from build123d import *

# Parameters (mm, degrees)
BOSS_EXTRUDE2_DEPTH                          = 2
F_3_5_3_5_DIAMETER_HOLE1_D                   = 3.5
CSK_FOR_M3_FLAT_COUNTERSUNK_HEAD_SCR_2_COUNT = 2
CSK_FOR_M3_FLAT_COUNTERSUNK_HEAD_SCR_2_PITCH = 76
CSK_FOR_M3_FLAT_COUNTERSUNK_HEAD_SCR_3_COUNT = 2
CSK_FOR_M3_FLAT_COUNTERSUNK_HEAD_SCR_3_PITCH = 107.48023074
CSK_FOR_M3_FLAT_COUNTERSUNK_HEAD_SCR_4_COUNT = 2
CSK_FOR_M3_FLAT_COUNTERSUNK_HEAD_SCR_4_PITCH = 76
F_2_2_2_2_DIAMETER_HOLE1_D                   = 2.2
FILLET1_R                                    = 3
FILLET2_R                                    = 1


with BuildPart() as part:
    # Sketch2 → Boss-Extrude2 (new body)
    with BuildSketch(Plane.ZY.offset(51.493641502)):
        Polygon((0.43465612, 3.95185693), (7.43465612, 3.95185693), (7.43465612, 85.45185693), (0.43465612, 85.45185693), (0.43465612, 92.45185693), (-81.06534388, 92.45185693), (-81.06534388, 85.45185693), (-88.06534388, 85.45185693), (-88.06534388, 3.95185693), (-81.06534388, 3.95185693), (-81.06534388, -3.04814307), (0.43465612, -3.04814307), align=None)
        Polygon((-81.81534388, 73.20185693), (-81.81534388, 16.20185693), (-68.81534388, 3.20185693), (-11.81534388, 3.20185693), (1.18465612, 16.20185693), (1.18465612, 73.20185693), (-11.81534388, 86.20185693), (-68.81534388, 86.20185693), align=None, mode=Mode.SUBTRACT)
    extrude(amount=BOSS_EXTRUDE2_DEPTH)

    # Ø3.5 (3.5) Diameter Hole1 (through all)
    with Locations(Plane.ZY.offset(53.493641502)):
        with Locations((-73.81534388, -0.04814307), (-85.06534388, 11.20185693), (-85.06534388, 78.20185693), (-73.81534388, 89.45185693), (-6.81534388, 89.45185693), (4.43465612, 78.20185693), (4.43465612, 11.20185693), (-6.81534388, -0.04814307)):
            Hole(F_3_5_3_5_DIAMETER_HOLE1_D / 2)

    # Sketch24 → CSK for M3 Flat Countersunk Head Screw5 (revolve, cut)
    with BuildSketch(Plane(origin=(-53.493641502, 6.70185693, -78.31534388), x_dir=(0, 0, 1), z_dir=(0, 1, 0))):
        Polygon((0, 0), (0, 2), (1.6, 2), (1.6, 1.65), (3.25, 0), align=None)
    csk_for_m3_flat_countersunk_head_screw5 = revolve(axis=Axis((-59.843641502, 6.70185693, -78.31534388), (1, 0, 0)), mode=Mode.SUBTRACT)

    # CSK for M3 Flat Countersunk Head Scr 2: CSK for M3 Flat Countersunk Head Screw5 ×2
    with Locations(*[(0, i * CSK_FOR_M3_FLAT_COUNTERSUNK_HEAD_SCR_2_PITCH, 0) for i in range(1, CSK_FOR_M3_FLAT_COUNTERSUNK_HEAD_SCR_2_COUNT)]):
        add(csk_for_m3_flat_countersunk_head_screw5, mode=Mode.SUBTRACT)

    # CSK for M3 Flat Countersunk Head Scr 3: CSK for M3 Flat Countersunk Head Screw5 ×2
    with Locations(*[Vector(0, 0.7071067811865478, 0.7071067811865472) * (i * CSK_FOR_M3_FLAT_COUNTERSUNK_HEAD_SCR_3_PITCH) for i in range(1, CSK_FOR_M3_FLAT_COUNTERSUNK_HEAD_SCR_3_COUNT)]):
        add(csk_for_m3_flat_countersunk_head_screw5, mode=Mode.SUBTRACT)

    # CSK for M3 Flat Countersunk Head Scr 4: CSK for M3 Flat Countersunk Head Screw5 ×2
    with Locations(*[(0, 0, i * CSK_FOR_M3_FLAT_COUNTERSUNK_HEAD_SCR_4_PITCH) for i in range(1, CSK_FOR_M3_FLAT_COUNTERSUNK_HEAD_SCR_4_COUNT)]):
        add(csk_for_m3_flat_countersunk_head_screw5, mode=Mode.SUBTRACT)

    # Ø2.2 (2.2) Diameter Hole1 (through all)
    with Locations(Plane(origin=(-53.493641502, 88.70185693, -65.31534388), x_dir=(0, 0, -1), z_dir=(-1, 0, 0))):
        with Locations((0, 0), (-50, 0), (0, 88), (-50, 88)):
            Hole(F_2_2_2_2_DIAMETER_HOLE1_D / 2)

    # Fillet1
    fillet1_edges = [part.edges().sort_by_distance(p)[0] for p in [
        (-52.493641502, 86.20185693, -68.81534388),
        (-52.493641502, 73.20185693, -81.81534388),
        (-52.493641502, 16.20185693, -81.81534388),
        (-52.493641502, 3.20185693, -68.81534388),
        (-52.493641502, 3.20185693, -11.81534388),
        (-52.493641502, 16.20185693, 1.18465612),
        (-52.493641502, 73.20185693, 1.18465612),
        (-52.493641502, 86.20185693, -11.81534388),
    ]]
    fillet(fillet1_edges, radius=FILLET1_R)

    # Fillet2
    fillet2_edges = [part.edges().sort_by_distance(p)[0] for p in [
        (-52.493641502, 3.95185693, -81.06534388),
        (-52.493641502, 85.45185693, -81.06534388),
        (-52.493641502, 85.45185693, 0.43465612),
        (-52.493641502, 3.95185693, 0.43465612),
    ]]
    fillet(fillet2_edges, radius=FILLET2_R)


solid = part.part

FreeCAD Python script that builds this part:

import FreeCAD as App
import Part
import Sketcher
Q = App.Units.Quantity


def edges_at(feature, points):
    """Names of the edges that pass closest to the given points."""
    edges = feature.Shape.Edges
    near = lambda p: min(range(len(edges)), key=lambda i: edges[i].distToShape(Part.Vertex(*p))[0])
    return sorted({f"Edge{near(p) + 1}" for p in points})


def add_polygon(sketch, points):
    """Adds a closed chain of lines whose ends are joined by coincident constraints."""
    first, n = sketch.GeometryCount, len(points)
    for a, b in zip(points, points[1:] + points[:1]):
        sketch.addGeometry(Part.LineSegment(App.Vector(*a, 0), App.Vector(*b, 0)), False)
    for i in range(n):
        sketch.addConstraint(Sketcher.Constraint("Coincident", first + i, 2, first + (i + 1) % n, 1))

doc = App.newDocument("Part")
body = doc.addObject("PartDesign::Body", "Body")

# Sketch on YZ plane
sketch1 = body.newObject("Sketcher::SketchObject", "Sketch")
sketch1.AttachmentSupport = (doc.getObject("YZ_Plane"), [""])
sketch1.MapMode = "FlatFace"
sketch1.AttachmentOffset = App.Placement(App.Vector(0, 0, -51.493642), App.Rotation())
add_polygon(sketch1, [(4, 0), (4, 7), (85, 7), (85, 0), (92, 0), (92, -81), (85, -81), (85, -88), (4, -88), (4, -81), (-3, -81), (-3, 0)])  # lines 0-11
add_polygon(sketch1, [(16, -82), (73, -82), (86, -69), (86, -12), (73, 1), (16, 1), (3, -12), (3, -69)])  # lines 12-19
sketch1.addConstraint([
    Sketcher.Constraint("Vertical", 0),
    Sketcher.Constraint("Horizontal", 1),
    Sketcher.Constraint("Vertical", 2),
    Sketcher.Constraint("Horizontal", 3),
    Sketcher.Constraint("Vertical", 4),
    Sketcher.Constraint("Horizontal", 5),
    Sketcher.Constraint("Vertical", 6),
    Sketcher.Constraint("Horizontal", 7),
    Sketcher.Constraint("Vertical", 8),
    Sketcher.Constraint("Horizontal", 9),
    Sketcher.Constraint("Vertical", 10),
    Sketcher.Constraint("Horizontal", 11),
    Sketcher.Constraint("Horizontal", 12),
    Sketcher.Constraint("Vertical", 14),
    Sketcher.Constraint("Horizontal", 16),
    Sketcher.Constraint("Vertical", 18),
    Sketcher.Constraint("Perpendicular", 13, 15),
    Sketcher.Constraint("Perpendicular", 15, 17),
    Sketcher.Constraint("Perpendicular", 17, 19),
    Sketcher.Constraint("Horizontal", 5, 2, 8, 2),
    Sketcher.Constraint("Horizontal", 3, 2, 10, 2),
    Sketcher.Constraint("Horizontal", 14, 2, 17, 2),
    Sketcher.Constraint("Horizontal", 13, 2, 18, 2),
    Sketcher.Constraint("Vertical", 2, 2, 5, 2),
    Sketcher.Constraint("Vertical", 0, 2, 7, 2),
    Sketcher.Constraint("Vertical", 12, 2, 15, 2),
    Sketcher.Constraint("Vertical", 16, 2, 19, 2),
    Sketcher.Constraint("Equal", 5, 9),
    Sketcher.Constraint("Equal", 11, 0),
    Sketcher.Constraint("Equal", 7, 4),
    Sketcher.Constraint("Equal", 2, 6),
    Sketcher.Constraint("Equal", 16, 14),
    Sketcher.Constraint("DistanceX", 3, 1, 3, 2, 7.0),
    Sketcher.Constraint("DistanceX", 12, 1, 12, 2, 57.0),
    Sketcher.Constraint("DistanceX", 1, 1, 1, 2, 81.5),
    Sketcher.Constraint("DistanceX", 12, 2, 13, 2, 13.0),
    Sketcher.Constraint("DistanceX", 12, 2, 5, 2, 12.25),
    Sketcher.Constraint("DistanceY", 12, 2, 5, 2, 0.75),
    Sketcher.Constraint("DistanceX", -1, 1, 0, 2, 3.951857),
    Sketcher.Constraint("DistanceY", -1, 1, 0, 2, 7.434656),
])
pad1 = body.newObject("PartDesign::Pad", "Pad")
pad1.Profile = sketch1
pad1.Length = 2
pad1.Reversed = True

# Sketch on YZ plane
sketch2 = body.newObject("Sketcher::SketchObject", "Sketch001")
sketch2.AttachmentSupport = (doc.getObject("YZ_Plane"), [""])
sketch2.MapMode = "FlatFace"
sketch2.AttachmentOffset = App.Placement(App.Vector(0, 0, -53.493642), App.Rotation())
sketch2.addGeometry([
    Part.Circle(App.Vector(0, -73.8, 0), App.Vector(0, 0, 1), 1.8),  # 0
    Part.Circle(App.Vector(11.2, -85.1, 0), App.Vector(0, 0, 1), 1.8),  # 1
    Part.Circle(App.Vector(78.2, -85.1, 0), App.Vector(0, 0, 1), 1.8),  # 2
    Part.Circle(App.Vector(89.5, -73.8, 0), App.Vector(0, 0, 1), 1.8),  # 3
    Part.Circle(App.Vector(89.5, -6.8, 0), App.Vector(0, 0, 1), 1.8),  # 4
    Part.Circle(App.Vector(78.2, 4.4, 0), App.Vector(0, 0, 1), 1.8),  # 5
    Part.Circle(App.Vector(11.2, 4.4, 0), App.Vector(0, 0, 1), 1.8),  # 6
    Part.Circle(App.Vector(0, -6.8, 0), App.Vector(0, 0, 1), 1.8),  # 7
], False)
sketch2.addConstraint([
    Sketcher.Constraint("Equal", 0, 1),
    Sketcher.Constraint("Equal", 1, 2),
    Sketcher.Constraint("Equal", 2, 3),
    Sketcher.Constraint("Equal", 3, 4),
    Sketcher.Constraint("Equal", 4, 5),
    Sketcher.Constraint("Equal", 5, 6),
    Sketcher.Constraint("Equal", 6, 7),
    Sketcher.Constraint("Horizontal", 1, 3, 2, 3),
    Sketcher.Constraint("Horizontal", 0, 3, 3, 3),
    Sketcher.Constraint("Horizontal", 5, 3, 6, 3),
    Sketcher.Constraint("Horizontal", 4, 3, 7, 3),
    Sketcher.Constraint("Vertical", 3, 3, 4, 3),
    Sketcher.Constraint("Vertical", 2, 3, 5, 3),
    Sketcher.Constraint("Vertical", 1, 3, 6, 3),
    Sketcher.Constraint("Vertical", 0, 3, 7, 3),
    Sketcher.Constraint("Diameter", 0, 3.5),
    Sketcher.Constraint("DistanceX", 1, 3, 2, 3, 67.0),
    Sketcher.Constraint("DistanceY", 3, 3, 4, 3, 67.0),
    Sketcher.Constraint("DistanceX", 0, 3, 3, 3, 89.5),
    Sketcher.Constraint("DistanceY", 2, 3, 5, 3, 89.5),
    Sketcher.Constraint("DistanceX", 0, 3, 1, 3, 11.25),
    Sketcher.Constraint("DistanceY", 1, 3, 0, 3, 11.25),
    Sketcher.Constraint("DistanceX", 0, 3, -1, 1, 0.048143),
    Sketcher.Constraint("DistanceY", 0, 3, -1, 1, 73.815344),
])
doc.recompute()
hole = body.newObject("PartDesign::Hole", "Hole")
hole.Profile = sketch2
hole.ThreadType = "None"
hole.Diameter = 3.5
hole.DepthType = "ThroughAll"
hole.Reversed = True

# Sketch on XZ plane
sketch3 = body.newObject("Sketcher::SketchObject", "Sketch002")
sketch3.AttachmentSupport = (doc.getObject("XZ_Plane"), [""])
sketch3.MapMode = "FlatFace"
sketch3.AttachmentOffset = App.Placement(App.Vector(0, 0, -6.701857), App.Rotation())
add_polygon(sketch3, [(-51.49, -78.32), (-53.49, -78.32), (-53.49, -75.07), (-51.84, -76.72), (-51.49, -76.72)])  # lines 0-4
sketch3.addGeometry(Part.LineSegment(App.Vector(-53.49, -78.32, 0), App.Vector(-51.49, -78.32, 0)), True)  # axis
sketch3.addConstraint([
    Sketcher.Constraint("Horizontal", 0),
    Sketcher.Constraint("Vertical", 1),
    Sketcher.Constraint("Horizontal", 3),
    Sketcher.Constraint("Vertical", 4),
    Sketcher.Constraint("Horizontal", 5),
    Sketcher.Constraint("Coincident", 5, 1, 0, 2),
    Sketcher.Constraint("Vertical", 3, 2, 5, 2),
    Sketcher.Constraint("DistanceX", 0, 2, 0, 1, 2.0),
    Sketcher.Constraint("Angle", 2, Q("-45 deg")),
    Sketcher.Constraint("DistanceY", 4, 2, 4, 1, 1.6),
    Sketcher.Constraint("DistanceX", 3, 1, 3, 2, 0.35),
    Sketcher.Constraint("DistanceX", 0, 2, -1, 1, 53.493642),
    Sketcher.Constraint("DistanceY", 0, 2, -1, 1, 78.315344),
])
groove = body.newObject("PartDesign::Groove", "Groove")
groove.Profile = sketch3
groove.ReferenceAxis = (sketch3, ["Axis0"])
groove.Angle = 360
doc.recompute()

linearpattern = body.newObject("PartDesign::LinearPattern", "LinearPattern")
linearpattern.Originals = [groove]
linearpattern.Direction = (doc.getObject("Y_Axis"), [""])
linearpattern.Mode = "offset"
linearpattern.Offset = 76
linearpattern.Occurrences = 2
body.Tip = linearpattern
doc.recompute()

datumline = body.newObject("PartDesign::Line", "DatumLine")
datumline.Placement = App.Placement(App.Vector(0, 0, 0), App.Rotation(App.Vector(0, 0, 1), App.Vector(0, 0.707106781, 0.707106781)))
linearpattern2 = body.newObject("PartDesign::LinearPattern", "LinearPattern001")
linearpattern2.Originals = [groove]
linearpattern2.Direction = (datumline, [""])
linearpattern2.Mode = "offset"
linearpattern2.Offset = 107.480231
linearpattern2.Occurrences = 2
body.Tip = linearpattern2
doc.recompute()

linearpattern3 = body.newObject("PartDesign::LinearPattern", "LinearPattern002")
linearpattern3.Originals = [groove]
linearpattern3.Direction = (doc.getObject("Z_Axis"), [""])
linearpattern3.Mode = "offset"
linearpattern3.Offset = 76
linearpattern3.Occurrences = 2
body.Tip = linearpattern3

# Sketch on YZ plane
sketch4 = body.newObject("Sketcher::SketchObject", "Sketch003")
sketch4.AttachmentSupport = (doc.getObject("YZ_Plane"), [""])
sketch4.MapMode = "FlatFace"
sketch4.AttachmentOffset = App.Placement(App.Vector(0, 0, -53.493642), App.Rotation())
sketch4.addGeometry([
    Part.Circle(App.Vector(88.7, -65.3, 0), App.Vector(0, 0, 1), 1.1),
    Part.Circle(App.Vector(88.7, -15.3, 0), App.Vector(0, 0, 1), 1.1),
    Part.Circle(App.Vector(0.7, -65.3, 0), App.Vector(0, 0, 1), 1.1),
    Part.Circle(App.Vector(0.7, -15.3, 0), App.Vector(0, 0, 1), 1.1),
], False)
sketch4.addConstraint([
    Sketcher.Constraint("Equal", 0, 1),
    Sketcher.Constraint("Equal", 1, 2),
    Sketcher.Constraint("Equal", 2, 3),
    Sketcher.Constraint("Horizontal", 0, 3, 2, 3),
    Sketcher.Constraint("Horizontal", 1, 3, 3, 3),
    Sketcher.Constraint("Vertical", 0, 3, 1, 3),
    Sketcher.Constraint("Vertical", 2, 3, 3, 3),
    Sketcher.Constraint("Diameter", 0, 2.2),
    Sketcher.Constraint("DistanceY", 0, 3, 1, 3, 50.0),
    Sketcher.Constraint("DistanceX", 2, 3, 0, 3, 88.0),
    Sketcher.Constraint("DistanceX", -1, 1, 0, 3, 88.701857),
    Sketcher.Constraint("DistanceY", 0, 3, -1, 1, 65.315344),
])
doc.recompute()
hole2 = body.newObject("PartDesign::Hole", "Hole001")
hole2.Profile = sketch4
hole2.ThreadType = "None"
hole2.Diameter = 2.2
hole2.DepthType = "ThroughAll"
hole2.Reversed = True
doc.recompute()

fillet = body.newObject("PartDesign::Fillet", "Fillet")
fillet.Base = (hole2, edges_at(hole2, [
    (-52.494, 86.202, -68.815),
    (-52.494, 73.202, -81.815),
    (-52.494, 16.202, -81.815),
    (-52.494, 3.202, -68.815),
    (-52.494, 3.202, -11.815),
    (-52.494, 16.202, 1.185),
    (-52.494, 73.202, 1.185),
    (-52.494, 86.202, -11.815),
]))
fillet.Radius = 3
doc.recompute()

fillet2 = body.newObject("PartDesign::Fillet", "Fillet001")
fillet2.Base = (fillet, edges_at(fillet, [
    (-52.494, 3.952, -81.065),
    (-52.494, 85.452, -81.065),
    (-52.494, 85.452, 0.435),
    (-52.494, 3.952, 0.435),
]))
fillet2.Radius = 1

doc.recompute()
